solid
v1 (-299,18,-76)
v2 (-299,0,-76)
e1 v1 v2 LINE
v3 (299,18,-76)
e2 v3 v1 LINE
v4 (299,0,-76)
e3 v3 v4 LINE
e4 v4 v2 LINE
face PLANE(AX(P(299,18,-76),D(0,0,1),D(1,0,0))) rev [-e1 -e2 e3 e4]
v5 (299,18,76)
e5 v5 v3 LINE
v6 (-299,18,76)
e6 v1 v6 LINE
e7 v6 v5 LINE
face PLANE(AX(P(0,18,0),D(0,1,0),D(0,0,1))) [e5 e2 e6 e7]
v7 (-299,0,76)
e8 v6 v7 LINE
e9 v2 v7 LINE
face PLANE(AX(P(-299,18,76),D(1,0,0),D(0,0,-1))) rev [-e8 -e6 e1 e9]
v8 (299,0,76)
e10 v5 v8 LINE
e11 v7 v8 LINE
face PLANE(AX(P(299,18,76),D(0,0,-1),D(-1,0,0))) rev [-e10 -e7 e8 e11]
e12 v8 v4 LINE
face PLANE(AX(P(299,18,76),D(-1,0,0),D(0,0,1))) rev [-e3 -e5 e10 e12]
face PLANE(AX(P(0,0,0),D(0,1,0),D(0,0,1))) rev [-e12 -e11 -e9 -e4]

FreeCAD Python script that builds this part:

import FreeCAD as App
import Part
import Sketcher

V = App.Vector


def add_polygon(sketch, points):
    """Adds a closed chain of lines whose ends are joined by coincident constraints."""
    first, n = sketch.GeometryCount, len(points)
    for a, b in zip(points, points[1:] + points[:1]):
        sketch.addGeometry(Part.LineSegment(App.Vector(*a, 0), App.Vector(*b, 0)), False)
    for i in range(n):
        sketch.addConstraint(Sketcher.Constraint("Coincident", first + i, 2, first + (i + 1) % n, 1))

doc = App.newDocument("Part")
body = doc.addObject("PartDesign::Body", "Body")

sketch1 = body.newObject("Sketcher::SketchObject", "Sketch")
sketch1.AttachmentSupport = (doc.getObject("XZ_Plane"), [""])
sketch1.MapMode = "FlatFace"
add_polygon(sketch1, [(-299, -76), (-299, 76), (299, 76), (299, -76)])
sketch1.addConstraint([
    Sketcher.Constraint("Vertical", 0),
    Sketcher.Constraint("Horizontal", 1),
    Sketcher.Constraint("Vertical", 2),
    Sketcher.Constraint("Horizontal", 3),
    Sketcher.Constraint("Symmetric", 0, 2, 2, 2, -1, 1),
    Sketcher.Constraint("DistanceX", 1, 1, 1, 2, 598.0),
    Sketcher.Constraint("DistanceY", 0, 1, 0, 2, 152.0),
])
pad1 = body.newObject("PartDesign::Pad", "Pad")
pad1.Profile = sketch1
pad1.Length = 18
pad1.Reversed = True

doc.recompute()
